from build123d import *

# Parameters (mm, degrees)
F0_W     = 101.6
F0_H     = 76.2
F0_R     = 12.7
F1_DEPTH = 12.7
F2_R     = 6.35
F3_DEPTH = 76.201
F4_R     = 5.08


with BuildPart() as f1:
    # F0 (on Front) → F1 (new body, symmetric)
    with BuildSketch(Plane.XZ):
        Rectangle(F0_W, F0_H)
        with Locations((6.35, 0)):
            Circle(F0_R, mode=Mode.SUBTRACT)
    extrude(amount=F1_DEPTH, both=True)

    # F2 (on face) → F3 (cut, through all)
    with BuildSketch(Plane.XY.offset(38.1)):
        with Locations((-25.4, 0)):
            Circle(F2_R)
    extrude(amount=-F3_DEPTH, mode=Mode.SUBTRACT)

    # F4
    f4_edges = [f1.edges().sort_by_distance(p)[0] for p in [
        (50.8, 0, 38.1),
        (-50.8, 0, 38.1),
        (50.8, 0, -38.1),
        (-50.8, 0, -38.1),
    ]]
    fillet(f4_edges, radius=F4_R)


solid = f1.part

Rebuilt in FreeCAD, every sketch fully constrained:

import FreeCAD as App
import Part
import Sketcher

V = App.Vector
Q = App.Units.Quantity


def edges_at(feature, points):
    """Names of the edges that pass closest to the given points."""
    edges = feature.Shape.Edges
    near = lambda p: min(range(len(edges)), key=lambda i: edges[i].distToShape(Part.Vertex(*p))[0])
    return sorted({f"Edge{near(p) + 1}" for p in points})

doc = App.newDocument("Part")
body = doc.addObject("PartDesign::Body", "Body")

sketch1 = doc.addObject("Sketcher::SketchObject", "Sketch")
body.addObject(sketch1)
sketch1.AttachmentSupport = (doc.XZ_Plane, [""])
sketch1.MapMode = "FlatFace"
sketch1.addGeometry([
    Part.LineSegment(V(-51, 38, 0), V(-51, -38, 0)),
    Part.LineSegment(V(-51, -38, 0), V(51, -38, 0)),
    Part.LineSegment(V(51, -38, 0), V(51, 38, 0)),
    Part.LineSegment(V(51, 38, 0), V(-51, 38, 0)),
    Part.Circle(V(6, 0, 0), V(0, 0, 1), 13),
], False)
sketch1.addConstraint([
    Sketcher.Constraint("Coincident", 0, 2, 1, 1),
    Sketcher.Constraint("Coincident", 1, 2, 2, 1),
    Sketcher.Constraint("Coincident", 2, 2, 3, 1),
    Sketcher.Constraint("Coincident", 3, 2, 0, 1),
    Sketcher.Constraint("Vertical", 0),
    Sketcher.Constraint("Horizontal", 1),
    Sketcher.Constraint("Vertical", 2),
    Sketcher.Constraint("Horizontal", 3),
    Sketcher.Constraint("Symmetric", 0, 2, 2, 2, -1, 1),
    Sketcher.Constraint("PointOnObject", 4, 3, -1),
    Sketcher.Constraint("Diameter", 4, Q("1 in")),
    Sketcher.Constraint("DistanceX", 1, 1, 1, 2, Q("4 in")),
    Sketcher.Constraint("DistanceY", 0, 2, 0, 1, Q("3 in")),
    Sketcher.Constraint("DistanceX", -1, 1, 4, 3, Q("0.25 in")),
])
pad1 = doc.addObject("PartDesign::Pad", "Pad")
body.addObject(pad1)
pad1.Profile = sketch1
pad1.Length = Q("1 in")
pad1.Midplane = True

sketch2 = doc.addObject("Sketcher::SketchObject", "Sketch001")
body.addObject(sketch2)
sketch2.AttachmentSupport = (doc.XY_Plane, [""])
sketch2.MapMode = "FlatFace"
sketch2.AttachmentOffset = App.Placement(V(0, 0, 1.5 * 25.4), App.Rotation())
sketch2.addGeometry(Part.Circle(V(-25, 0, 0), V(0, 0, 1), 6), False)
sketch2.addConstraint([
    Sketcher.Constraint("PointOnObject", 0, 3, -1),
    Sketcher.Constraint("Diameter", 0, Q("0.5 in")),
    Sketcher.Constraint("DistanceX", 0, 3, -1, 1, Q("1 in")),
])
pocket1 = doc.addObject("PartDesign::Pocket", "Pocket")
body.addObject(pocket1)
pocket1.Profile = sketch2
pocket1.Type = "ThroughAll"
doc.recompute()

fillet = doc.addObject("PartDesign::Fillet", "Fillet")
body.addObject(fillet)
fillet.Base = (pocket1, edges_at(pocket1, [
    (50.8, 0, 38.1),
    (-50.8, 0, 38.1),
    (50.8, 0, -38.1),
    (-50.8, 0, -38.1),
]))
fillet.Radius = Q("0.2 in")

doc.recompute()
